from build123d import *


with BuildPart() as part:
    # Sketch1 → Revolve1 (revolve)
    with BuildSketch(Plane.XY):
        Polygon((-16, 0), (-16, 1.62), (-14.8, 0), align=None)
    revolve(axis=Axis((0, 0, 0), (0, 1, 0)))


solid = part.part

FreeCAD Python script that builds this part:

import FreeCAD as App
import Part
import Sketcher
from FreeCAD import Vector

doc = App.newDocument("Part")
params = doc.addObject("Spreadsheet::Sheet", "Params")
for row, (alias, value) in enumerate([
    ("sketch1_width", "1.2 mm"),
    ("sketch1_height", "1.62 mm"),
    ("revolution_angle", "360 deg"),
], start=1):
    params.set(f"A{row}", alias)
    params.set(f"B{row}", "=" + value)
    params.setAlias(f"B{row}", alias)

body = doc.addObject("PartDesign::Body", "Body")

sketch1 = doc.addObject("Sketcher::SketchObject", "Sketch")
body.addObject(sketch1)
sketch1.AttachmentSupport = (doc.XY_Plane, [""])
sketch1.MapMode = "FlatFace"
sketch1.addGeometry(Part.LineSegment(Vector(-16, 1.6, 0), Vector(-16, 0, 0)), False)
sketch1.addGeometry(Part.LineSegment(Vector(-16, 0, 0), Vector(-14.8, 0, 0)), False)
sketch1.addGeometry(Part.LineSegment(Vector(-14.8, 0, 0), Vector(-16, 1.6, 0)), False)
sketch1.addConstraint(Sketcher.Constraint("Coincident", 0, 2, 1, 1))
sketch1.addConstraint(Sketcher.Constraint("Coincident", 1, 2, 2, 1))
sketch1.addConstraint(Sketcher.Constraint("Coincident", 2, 2, 0, 1))
sketch1.addConstraint(Sketcher.Constraint("Vertical", 0))
sketch1.addConstraint(Sketcher.Constraint("Horizontal", 1))
sketch1.addConstraint(Sketcher.Constraint("PointOnObject", 0, 2, -1))
sketch1.addConstraint(Sketcher.Constraint("DistanceX", 1, 1, 1, 2, 1.2))
sketch1.addConstraint(Sketcher.Constraint("DistanceX", 0, 2, -1, 1, 16.0))
sketch1.addConstraint(Sketcher.Constraint("DistanceY", 0, 2, 0, 1, 1.62))
sketch1.setExpression("Constraints[6]", "Params.sketch1_width")
sketch1.setExpression("Constraints[8]", "Params.sketch1_height")
revolution = doc.addObject("PartDesign::Revolution", "Revolution")
body.addObject(revolution)
revolution.Profile = sketch1
revolution.ReferenceAxis = (sketch1, ["V_Axis"])
revolution.setExpression("Angle", "Params.revolution_angle")

doc.recompute()
